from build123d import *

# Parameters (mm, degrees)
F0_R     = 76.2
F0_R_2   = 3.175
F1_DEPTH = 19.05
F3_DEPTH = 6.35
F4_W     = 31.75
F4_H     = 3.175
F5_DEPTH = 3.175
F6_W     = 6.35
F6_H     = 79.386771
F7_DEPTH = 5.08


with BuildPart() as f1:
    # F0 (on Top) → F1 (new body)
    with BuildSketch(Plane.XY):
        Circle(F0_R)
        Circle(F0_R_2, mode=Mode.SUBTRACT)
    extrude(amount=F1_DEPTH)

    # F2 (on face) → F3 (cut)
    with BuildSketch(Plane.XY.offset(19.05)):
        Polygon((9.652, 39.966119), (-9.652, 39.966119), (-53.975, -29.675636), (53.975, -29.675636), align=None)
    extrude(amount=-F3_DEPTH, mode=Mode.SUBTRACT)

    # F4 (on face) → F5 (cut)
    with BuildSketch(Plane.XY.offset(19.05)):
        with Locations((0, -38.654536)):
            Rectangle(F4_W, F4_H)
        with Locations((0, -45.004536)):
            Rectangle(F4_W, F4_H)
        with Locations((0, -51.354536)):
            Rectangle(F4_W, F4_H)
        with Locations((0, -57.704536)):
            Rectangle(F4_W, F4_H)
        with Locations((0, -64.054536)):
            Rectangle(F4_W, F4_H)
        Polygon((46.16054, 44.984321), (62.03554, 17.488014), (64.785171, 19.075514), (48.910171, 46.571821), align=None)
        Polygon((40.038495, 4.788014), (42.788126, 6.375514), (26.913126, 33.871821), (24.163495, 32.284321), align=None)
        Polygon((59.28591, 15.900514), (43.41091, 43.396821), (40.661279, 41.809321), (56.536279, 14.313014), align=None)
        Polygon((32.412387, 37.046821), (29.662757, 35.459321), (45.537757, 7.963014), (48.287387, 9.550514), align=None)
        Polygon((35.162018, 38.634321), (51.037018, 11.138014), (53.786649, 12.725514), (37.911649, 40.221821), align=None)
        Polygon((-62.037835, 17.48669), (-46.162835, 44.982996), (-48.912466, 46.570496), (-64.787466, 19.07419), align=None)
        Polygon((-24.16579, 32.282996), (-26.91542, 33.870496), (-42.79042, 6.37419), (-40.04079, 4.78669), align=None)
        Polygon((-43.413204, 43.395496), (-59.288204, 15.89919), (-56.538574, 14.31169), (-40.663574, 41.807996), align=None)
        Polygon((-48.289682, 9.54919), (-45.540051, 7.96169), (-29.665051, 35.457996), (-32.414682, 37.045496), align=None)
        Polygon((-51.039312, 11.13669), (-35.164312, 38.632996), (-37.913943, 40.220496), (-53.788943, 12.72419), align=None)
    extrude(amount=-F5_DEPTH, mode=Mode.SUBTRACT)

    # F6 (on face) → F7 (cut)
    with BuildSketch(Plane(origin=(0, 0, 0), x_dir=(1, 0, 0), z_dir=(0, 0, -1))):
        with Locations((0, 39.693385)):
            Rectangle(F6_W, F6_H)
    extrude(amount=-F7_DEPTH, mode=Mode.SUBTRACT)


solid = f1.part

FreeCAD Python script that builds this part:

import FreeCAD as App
import Part
import Sketcher
Q = App.Units.Quantity

doc = App.newDocument("Part")
body = doc.addObject("PartDesign::Body", "Body")

sketch1 = doc.addObject("Sketcher::SketchObject", "Sketch")
body.addObject(sketch1)
sketch1.AttachmentSupport = (doc.XY_Plane, [""])
sketch1.MapMode = "FlatFace"
sketch1.addGeometry([
    Part.Circle(App.Vector(0, 0, 0), App.Vector(0, 0, 1), 76.2),
    Part.Circle(App.Vector(0, 0, 0), App.Vector(0, 0, 1), 3.2),
], False)
sketch1.addConstraint([
    Sketcher.Constraint("Coincident", 0, 3, -1, 1),
    Sketcher.Constraint("Coincident", 1, 3, -1, 1),
    Sketcher.Constraint("Diameter", 0, Q("6 in")),
    Sketcher.Constraint("Diameter", 1, Q("0.25 in")),
])
pad1 = doc.addObject("PartDesign::Pad", "Pad")
body.addObject(pad1)
pad1.Profile = sketch1
pad1.Length = Q("0.75 in")

sketch2 = doc.addObject("Sketcher::SketchObject", "Sketch001")
body.addObject(sketch2)
sketch2.AttachmentSupport = (doc.XY_Plane, [""])
sketch2.MapMode = "FlatFace"
sketch2.AttachmentOffset = App.Placement(App.Vector(0, 0, 0.75 * 25.4), App.Rotation())
sketch2.addGeometry([
    Part.LineSegment(App.Vector(10, 40, 0), App.Vector(-10, 40, 0)),
    Part.LineSegment(App.Vector(-10, 40, 0), App.Vector(-54, -30, 0)),
    Part.LineSegment(App.Vector(-54, -30, 0), App.Vector(54, -30, 0)),
    Part.LineSegment(App.Vector(54, -30, 0), App.Vector(10, 40, 0)),
], False)
sketch2.addConstraint([
    Sketcher.Constraint("Coincident", 0, 2, 1, 1),
    Sketcher.Constraint("Coincident", 1, 2, 2, 1),
    Sketcher.Constraint("Coincident", 2, 2, 3, 1),
    Sketcher.Constraint("Coincident", 3, 2, 0, 1),
    Sketcher.Constraint("Horizontal", 0),
    Sketcher.Constraint("Horizontal", 2),
    Sketcher.Constraint("Equal", 1, 3),
    Sketcher.Constraint("DistanceX", 0, 2, 0, 1, Q("0.76 in")),
    Sketcher.Constraint("DistanceX", 2, 1, 2, 2, Q("4.25 in")),
    Sketcher.Constraint("Distance", 1, Q("3.25 in")),
    Sketcher.Constraint("DistanceX", 0, 2, -1, 1, Q("0.38 in")),
    Sketcher.Constraint("DistanceY", -1, 1, 0, 2, Q("39.966119 mm")),
])
pocket1 = doc.addObject("PartDesign::Pocket", "Pocket")
body.addObject(pocket1)
pocket1.Profile = sketch2
pocket1.Length = Q("0.25 in")

sketch3 = doc.addObject("Sketcher::SketchObject", "Sketch002")
body.addObject(sketch3)
sketch3.AttachmentSupport = (doc.XY_Plane, [""])
sketch3.MapMode = "FlatFace"
sketch3.AttachmentOffset = App.Placement(App.Vector(0, 0, 0.75 * 25.4), App.Rotation())
sketch3.addGeometry([
    Part.LineSegment(App.Vector(-15.9, -37.1, 0), App.Vector(-15.9, -40.2, 0)),
    Part.LineSegment(App.Vector(-15.9, -40.2, 0), App.Vector(15.9, -40.2, 0)),
    Part.LineSegment(App.Vector(15.9, -40.2, 0), App.Vector(15.9, -37.1, 0)),
    Part.LineSegment(App.Vector(15.9, -37.1, 0), App.Vector(-15.9, -37.1, 0)),
    Part.LineSegment(App.Vector(-15.9, -43.4, 0), App.Vector(-15.9, -46.6, 0)),
    Part.LineSegment(App.Vector(-15.9, -46.6, 0), App.Vector(15.9, -46.6, 0)),
    Part.LineSegment(App.Vector(15.9, -46.6, 0), App.Vector(15.9, -43.4, 0)),
    Part.LineSegment(App.Vector(15.9, -43.4, 0), App.Vector(-15.9, -43.4, 0)),
    Part.LineSegment(App.Vector(-15.9, -49.8, 0), App.Vector(-15.9, -52.9, 0)),
    Part.LineSegment(App.Vector(-15.9, -52.9, 0), App.Vector(15.9, -52.9, 0)),
    Part.LineSegment(App.Vector(15.9, -52.9, 0), App.Vector(15.9, -49.8, 0)),
    Part.LineSegment(App.Vector(15.9, -49.8, 0), App.Vector(-15.9, -49.8, 0)),
    Part.LineSegment(App.Vector(-15.9, -56.1, 0), App.Vector(-15.9, -59.3, 0)),
    Part.LineSegment(App.Vector(-15.9, -59.3, 0), App.Vector(15.9, -59.3, 0)),
    Part.LineSegment(App.Vector(15.9, -59.3, 0), App.Vector(15.9, -56.1, 0)),
    Part.LineSegment(App.Vector(15.9, -56.1, 0), App.Vector(-15.9, -56.1, 0)),
    Part.LineSegment(App.Vector(-15.9, -62.5, 0), App.Vector(-15.9, -65.6, 0)),
    Part.LineSegment(App.Vector(-15.9, -65.6, 0), App.Vector(15.9, -65.6, 0)),
    Part.LineSegment(App.Vector(15.9, -65.6, 0), App.Vector(15.9, -62.5, 0)),
    Part.LineSegment(App.Vector(15.9, -62.5, 0), App.Vector(-15.9, -62.5, 0)),
    Part.LineSegment(App.Vector(46.2, 45, 0), App.Vector(62, 17.5, 0)),
    Part.LineSegment(App.Vector(62, 17.5, 0), App.Vector(64.8, 19.1, 0)),
    Part.LineSegment(App.Vector(64.8, 19.1, 0), App.Vector(48.9, 46.6, 0)),
    Part.LineSegment(App.Vector(48.9, 46.6, 0), App.Vector(46.2, 45, 0)),
    Part.LineSegment(App.Vector(40, 4.8, 0), App.Vector(42.8, 6.4, 0)),
    Part.LineSegment(App.Vector(42.8, 6.4, 0), App.Vector(26.9, 33.9, 0)),
    Part.LineSegment(App.Vector(26.9, 33.9, 0), App.Vector(24.2, 32.3, 0)),
    Part.LineSegment(App.Vector(24.2, 32.3, 0), App.Vector(40, 4.8, 0)),
    Part.LineSegment(App.Vector(59.3, 15.9, 0), App.Vector(43.4, 43.4, 0)),
    Part.LineSegment(App.Vector(43.4, 43.4, 0), App.Vector(40.7, 41.8, 0)),
    Part.LineSegment(App.Vector(40.7, 41.8, 0), App.Vector(56.5, 14.3, 0)),
    Part.LineSegment(App.Vector(56.5, 14.3, 0), App.Vector(59.3, 15.9, 0)),
    Part.LineSegment(App.Vector(32.4, 37, 0), App.Vector(29.7, 35.5, 0)),
    Part.LineSegment(App.Vector(29.7, 35.5, 0), App.Vector(45.5, 8, 0)),
    Part.LineSegment(App.Vector(45.5, 8, 0), App.Vector(48.3, 9.6, 0)),
    Part.LineSegment(App.Vector(48.3, 9.6, 0), App.Vector(32.4, 37, 0)),
    Part.LineSegment(App.Vector(35.2, 38.6, 0), App.Vector(51, 11.1, 0)),
    Part.LineSegment(App.Vector(51, 11.1, 0), App.Vector(53.8, 12.7, 0)),
    Part.LineSegment(App.Vector(53.8, 12.7, 0), App.Vector(37.9, 40.2, 0)),
    Part.LineSegment(App.Vector(37.9, 40.2, 0), App.Vector(35.2, 38.6, 0)),
    Part.LineSegment(App.Vector(-62, 17.5, 0), App.Vector(-46.2, 45, 0)),
    Part.LineSegment(App.Vector(-46.2, 45, 0), App.Vector(-48.9, 46.6, 0)),
    Part.LineSegment(App.Vector(-48.9, 46.6, 0), App.Vector(-64.8, 19.1, 0)),
    Part.LineSegment(App.Vector(-64.8, 19.1, 0), App.Vector(-62, 17.5, 0)),
    Part.LineSegment(App.Vector(-24.2, 32.3, 0), App.Vector(-26.9, 33.9, 0)),
    Part.LineSegment(App.Vector(-26.9, 33.9, 0), App.Vector(-42.8, 6.4, 0)),
    Part.LineSegment(App.Vector(-42.8, 6.4, 0), App.Vector(-40, 4.8, 0)),
    Part.LineSegment(App.Vector(-40, 4.8, 0), App.Vector(-24.2, 32.3, 0)),
    Part.LineSegment(App.Vector(-43.4, 43.4, 0), App.Vector(-59.3, 15.9, 0)),
    Part.LineSegment(App.Vector(-59.3, 15.9, 0), App.Vector(-56.5, 14.3, 0)),
    Part.LineSegment(App.Vector(-56.5, 14.3, 0), App.Vector(-40.7, 41.8, 0)),
    Part.LineSegment(App.Vector(-40.7, 41.8, 0), App.Vector(-43.4, 43.4, 0)),
    Part.LineSegment(App.Vector(-48.3, 9.5, 0), App.Vector(-45.5, 8, 0)),
    Part.LineSegment(App.Vector(-45.5, 8, 0), App.Vector(-29.7, 35.5, 0)),
    Part.LineSegment(App.Vector(-29.7, 35.5, 0), App.Vector(-32.4, 37, 0)),
    Part.LineSegment(App.Vector(-32.4, 37, 0), App.Vector(-48.3, 9.5, 0)),
    Part.LineSegment(App.Vector(-51, 11.1, 0), App.Vector(-35.2, 38.6, 0)),
    Part.LineSegment(App.Vector(-35.2, 38.6, 0), App.Vector(-37.9, 40.2, 0)),
    Part.LineSegment(App.Vector(-37.9, 40.2, 0), App.Vector(-53.8, 12.7, 0)),
    Part.LineSegment(App.Vector(-53.8, 12.7, 0), App.Vector(-51, 11.1, 0)),
], False)
sketch3.addConstraint([
    Sketcher.Constraint("Coincident", 0, 2, 1, 1),
    Sketcher.Constraint("Coincident", 1, 2, 2, 1),
    Sketcher.Constraint("Coincident", 2, 2, 3, 1),
    Sketcher.Constraint("Coincident", 3, 2, 0, 1),
    Sketcher.Constraint("Coincident", 4, 2, 5, 1),
    Sketcher.Constraint("Coincident", 5, 2, 6, 1),
    Sketcher.Constraint("Coincident", 6, 2, 7, 1),
    Sketcher.Constraint("Coincident", 7, 2, 4, 1),
    Sketcher.Constraint("Coincident", 8, 2, 9, 1),
    Sketcher.Constraint("Coincident", 9, 2, 10, 1),
    Sketcher.Constraint("Coincident", 10, 2, 11, 1),
    Sketcher.Constraint("Coincident", 11, 2, 8, 1),
    Sketcher.Constraint("Coincident", 12, 2, 13, 1),
    Sketcher.Constraint("Coincident", 13, 2, 14, 1),
    Sketcher.Constraint("Coincident", 14, 2, 15, 1),
    Sketcher.Constraint("Coincident", 15, 2, 12, 1),
    Sketcher.Constraint("Coincident", 16, 2, 17, 1),
    Sketcher.Constraint("Coincident", 17, 2, 18, 1),
    Sketcher.Constraint("Coincident", 18, 2, 19, 1),
    Sketcher.Constraint("Coincident", 19, 2, 16, 1),
    Sketcher.Constraint("Coincident", 20, 2, 21, 1),
    Sketcher.Constraint("Coincident", 21, 2, 22, 1),
    Sketcher.Constraint("Coincident", 22, 2, 23, 1),
    Sketcher.Constraint("Coincident", 23, 2, 20, 1),
    Sketcher.Constraint("Coincident", 24, 2, 25, 1),
    Sketcher.Constraint("Coincident", 25, 2, 26, 1),
    Sketcher.Constraint("Coincident", 26, 2, 27, 1),
    Sketcher.Constraint("Coincident", 27, 2, 24, 1),
    Sketcher.Constraint("Coincident", 28, 2, 29, 1),
    Sketcher.Constraint("Coincident", 29, 2, 30, 1),
    Sketcher.Constraint("Coincident", 30, 2, 31, 1),
    Sketcher.Constraint("Coincident", 31, 2, 28, 1),
    Sketcher.Constraint("Coincident", 32, 2, 33, 1),
    Sketcher.Constraint("Coincident", 33, 2, 34, 1),
    Sketcher.Constraint("Coincident", 34, 2, 35, 1),
    Sketcher.Constraint("Coincident", 35, 2, 32, 1),
    Sketcher.Constraint("Coincident", 36, 2, 37, 1),
    Sketcher.Constraint("Coincident", 37, 2, 38, 1),
    Sketcher.Constraint("Coincident", 38, 2, 39, 1),
    Sketcher.Constraint("Coincident", 39, 2, 36, 1),
    Sketcher.Constraint("Coincident", 40, 2, 41, 1),
    Sketcher.Constraint("Coincident", 41, 2, 42, 1),
    Sketcher.Constraint("Coincident", 42, 2, 43, 1),
    Sketcher.Constraint("Coincident", 43, 2, 40, 1),
    Sketcher.Constraint("Coincident", 44, 2, 45, 1),
    Sketcher.Constraint("Coincident", 45, 2, 46, 1),
    Sketcher.Constraint("Coincident", 46, 2, 47, 1),
    Sketcher.Constraint("Coincident", 47, 2, 44, 1),
    Sketcher.Constraint("Coincident", 48, 2, 49, 1),
    Sketcher.Constraint("Coincident", 49, 2, 50, 1),
    Sketcher.Constraint("Coincident", 50, 2, 51, 1),
    Sketcher.Constraint("Coincident", 51, 2, 48, 1),
    Sketcher.Constraint("Coincident", 52, 2, 53, 1),
    Sketcher.Constraint("Coincident", 53, 2, 54, 1),
    Sketcher.Constraint("Coincident", 54, 2, 55, 1),
    Sketcher.Constraint("Coincident", 55, 2, 52, 1),
    Sketcher.Constraint("Coincident", 56, 2, 57, 1),
    Sketcher.Constraint("Coincident", 57, 2, 58, 1),
    Sketcher.Constraint("Coincident", 58, 2, 59, 1),
    Sketcher.Constraint("Coincident", 59, 2, 56, 1),
    Sketcher.Constraint("Vertical", 0),
    Sketcher.Constraint("Horizontal", 1),
    Sketcher.Constraint("Vertical", 2),
    Sketcher.Constraint("Horizontal", 3),
    Sketcher.Constraint("Vertical", 4),
    Sketcher.Constraint("Horizontal", 5),
    Sketcher.Constraint("Vertical", 6),
    Sketcher.Constraint("Horizontal", 7),
    Sketcher.Constraint("Vertical", 8),
    Sketcher.Constraint("Horizontal", 9),
    Sketcher.Constraint("Vertical", 10),
    Sketcher.Constraint("Horizontal", 11),
    Sketcher.Constraint("Vertical", 12),
    Sketcher.Constraint("Horizontal", 13),
    Sketcher.Constraint("Vertical", 14),
    Sketcher.Constraint("Horizontal", 15),
    Sketcher.Constraint("Vertical", 16),
    Sketcher.Constraint("Horizontal", 17),
    Sketcher.Constraint("Vertical", 18),
    Sketcher.Constraint("Horizontal", 19),
    Sketcher.Constraint("Perpendicular", 20, 21),
    Sketcher.Constraint("Perpendicular", 21, 22),
    Sketcher.Constraint("Perpendicular", 22, 23),
    Sketcher.Constraint("Parallel", 23, 24),
    Sketcher.Constraint("Perpendicular", 24, 25),
    Sketcher.Constraint("Perpendicular", 25, 26),
    Sketcher.Constraint("Perpendicular", 26, 27),
    Sketcher.Constraint("Parallel", 27, 28),
    Sketcher.Constraint("Perpendicular", 28, 29),
    Sketcher.Constraint("Perpendicular", 29, 30),
    Sketcher.Constraint("Perpendicular", 30, 31),
    Sketcher.Constraint("Parallel", 31, 32),
    Sketcher.Constraint("Perpendicular", 32, 33),
    Sketcher.Constraint("Perpendicular", 33, 34),
    Sketcher.Constraint("Perpendicular", 34, 35),
    Sketcher.Constraint("Parallel", 35, 36),
    Sketcher.Constraint("Perpendicular", 36, 37),
    Sketcher.Constraint("Perpendicular", 37, 38),
    Sketcher.Constraint("Perpendicular", 38, 39),
    Sketcher.Constraint("Perpendicular", 40, 41),
    Sketcher.Constraint("Perpendicular", 41, 42),
    Sketcher.Constraint("Perpendicular", 42, 43),
    Sketcher.Constraint("Parallel", 43, 44),
    Sketcher.Constraint("Perpendicular", 44, 45),
    Sketcher.Constraint("Perpendicular", 45, 46),
    Sketcher.Constraint("Perpendicular", 46, 47),
    Sketcher.Constraint("Parallel", 47, 48),
    Sketcher.Constraint("Perpendicular", 48, 49),
    Sketcher.Constraint("Perpendicular", 49, 50),
    Sketcher.Constraint("Perpendicular", 50, 51),
    Sketcher.Constraint("Parallel", 51, 52),
    Sketcher.Constraint("Perpendicular", 52, 53),
    Sketcher.Constraint("Perpendicular", 53, 54),
    Sketcher.Constraint("Perpendicular", 54, 55),
    Sketcher.Constraint("Parallel", 55, 56),
    Sketcher.Constraint("Perpendicular", 56, 57),
    Sketcher.Constraint("Perpendicular", 57, 58),
    Sketcher.Constraint("Perpendicular", 58, 59),
    Sketcher.Constraint("Vertical", 3, 2, 4, 2),
    Sketcher.Constraint("Vertical", 2, 2, 5, 2),
    Sketcher.Constraint("Vertical", 7, 2, 8, 2),
    Sketcher.Constraint("Vertical", 6, 2, 9, 2),
    Sketcher.Constraint("Vertical", 11, 2, 12, 2),
    Sketcher.Constraint("Vertical", 10, 2, 13, 2),
    Sketcher.Constraint("Vertical", 15, 2, 16, 2),
    Sketcher.Constraint("Vertical", 14, 2, 17, 2),
    Sketcher.Constraint("Equal", 2, 4),
    Sketcher.Constraint("Equal", 6, 8),
    Sketcher.Constraint("Equal", 10, 12),
    Sketcher.Constraint("Equal", 14, 16),
    Sketcher.Constraint("Equal", 23, 24),
    Sketcher.Constraint("Equal", 22, 25),
    Sketcher.Constraint("Equal", 27, 28),
    Sketcher.Constraint("Equal", 26, 29),
    Sketcher.Constraint("Equal", 31, 32),
    Sketcher.Constraint("Equal", 30, 33),
    Sketcher.Constraint("Equal", 35, 36),
    Sketcher.Constraint("Equal", 34, 37),
    Sketcher.Constraint("Equal", 38, 40),
    Sketcher.Constraint("Equal", 39, 41),
    Sketcher.Constraint("Equal", 43, 44),
    Sketcher.Constraint("Equal", 42, 45),
    Sketcher.Constraint("Equal", 47, 48),
    Sketcher.Constraint("Equal", 46, 49),
    Sketcher.Constraint("Equal", 51, 52),
    Sketcher.Constraint("Equal", 50, 53),
    Sketcher.Constraint("Equal", 55, 56),
    Sketcher.Constraint("Equal", 54, 57),
    Sketcher.Constraint("Angle", 20, Q("-60 deg")),
    Sketcher.Constraint("Angle", 40, Q("59.999999 deg")),
    Sketcher.Constraint("DistanceX", 1, 1, 1, 2, Q("1.25 in")),
    Sketcher.Constraint("DistanceY", 8, 2, 0, 2, Q("0.5 in")),
    Sketcher.Constraint("DistanceY", 12, 2, 4, 2, Q("0.5 in")),
    Sketcher.Constraint("DistanceY", 16, 2, 8, 2, Q("0.5 in")),
    Sketcher.Constraint("DistanceY", 24, 2, 21, 2, Q("0.5 in")),
    Sketcher.Constraint("DistanceY", 44, 2, 41, 2, Q("0.5 in")),
    Sketcher.Constraint("Distance", 20, Q("1.25 in")),
    Sketcher.Constraint("DistanceY", 0, 2, 0, 1, Q("0.125 in")),
    Sketcher.Constraint("DistanceY", 4, 2, 0, 2, Q("0.25 in")),
    Sketcher.Constraint("DistanceY", 32, 2, 29, 2, Q("0.25 in")),
    Sketcher.Constraint("DistanceY", 52, 2, 49, 2, Q("0.25 in")),
    Sketcher.Constraint("Distance", 21, Q("0.125 in")),
    Sketcher.Constraint("DistanceX", 0, 2, -1, 1, Q("0.625 in")),
    Sketcher.Constraint("DistanceY", 28, 2, 23, 2, Q("0.0625 in")),
    Sketcher.Constraint("DistanceY", 34, 2, 36, 2, Q("0.0625 in")),
    Sketcher.Constraint("DistanceY", 48, 2, 43, 2, Q("0.0625 in")),
    Sketcher.Constraint("DistanceY", 54, 2, 56, 2, Q("0.0625 in")),
    Sketcher.Constraint("DistanceX", -1, 1, 20, 2, Q("62.03554 mm")),
    Sketcher.Constraint("DistanceY", -1, 1, 22, 2, Q("46.571821 mm")),
    Sketcher.Constraint("DistanceX", -1, 1, 28, 2, Q("43.41091 mm")),
    Sketcher.Constraint("DistanceX", -1, 1, 36, 2, Q("51.037018 mm")),
    Sketcher.Constraint("DistanceY", -1, 1, 42, 2, Q("19.07419 mm")),
    Sketcher.Constraint("DistanceX", 44, 2, -1, 1, Q("26.91542 mm")),
    Sketcher.Constraint("DistanceX", 52, 2, -1, 1, Q("45.540051 mm")),
    Sketcher.Constraint("DistanceY", 2, 2, 20, 2, Q("54.55505 mm")),
    Sketcher.Constraint("DistanceX", 25, 2, 32, 2, Q("2.749631 mm")),
    Sketcher.Constraint("DistanceX", 34, 2, 30, 2, Q("8.248892 mm")),
    Sketcher.Constraint("DistanceX", 40, 2, 26, 2, Q("70.32633 mm")),
    Sketcher.Constraint("DistanceX", 43, 2, 48, 2, Q("2.749631 mm")),
    Sketcher.Constraint("DistanceX", 56, 2, 54, 2, Q("2.74963 mm")),
])
pocket2 = doc.addObject("PartDesign::Pocket", "Pocket001")
body.addObject(pocket2)
pocket2.Profile = sketch3
pocket2.Length = Q("0.125 in")

sketch4 = doc.addObject("Sketcher::SketchObject", "Sketch003")
body.addObject(sketch4)
sketch4.AttachmentSupport = (doc.XY_Plane, [""])
sketch4.MapMode = "FlatFace"
sketch4.addGeometry([
    Part.LineSegment(App.Vector(-3, -79, 0), App.Vector(-3, 0, 0)),
    Part.LineSegment(App.Vector(-3, 0, 0), App.Vector(3, 0, 0)),
    Part.LineSegment(App.Vector(3, 0, 0), App.Vector(3, -79, 0)),
    Part.LineSegment(App.Vector(3, -79, 0), App.Vector(-3, -79, 0)),
], False)
sketch4.addConstraint([
    Sketcher.Constraint("Coincident", 0, 2, 1, 1),
    Sketcher.Constraint("Coincident", 1, 2, 2, 1),
    Sketcher.Constraint("Coincident", 2, 2, 3, 1),
    Sketcher.Constraint("Coincident", 3, 2, 0, 1),
    Sketcher.Constraint("Vertical", 0),
    Sketcher.Constraint("Horizontal", 1),
    Sketcher.Constraint("Vertical", 2),
    Sketcher.Constraint("Horizontal", 3),
    Sketcher.Constraint("Symmetric", 0, 2, 1, 2, -1, 1),
    Sketcher.Constraint("DistanceX", 1, 1, 1, 2, Q("0.25 in")),
    Sketcher.Constraint("DistanceY", 0, 1, 0, 2, Q("79.386771 mm")),
])
pocket3 = doc.addObject("PartDesign::Pocket", "Pocket002")
body.addObject(pocket3)
pocket3.Profile = sketch4
pocket3.Length = Q("0.2 in")
pocket3.Reversed = True

doc.recompute()
